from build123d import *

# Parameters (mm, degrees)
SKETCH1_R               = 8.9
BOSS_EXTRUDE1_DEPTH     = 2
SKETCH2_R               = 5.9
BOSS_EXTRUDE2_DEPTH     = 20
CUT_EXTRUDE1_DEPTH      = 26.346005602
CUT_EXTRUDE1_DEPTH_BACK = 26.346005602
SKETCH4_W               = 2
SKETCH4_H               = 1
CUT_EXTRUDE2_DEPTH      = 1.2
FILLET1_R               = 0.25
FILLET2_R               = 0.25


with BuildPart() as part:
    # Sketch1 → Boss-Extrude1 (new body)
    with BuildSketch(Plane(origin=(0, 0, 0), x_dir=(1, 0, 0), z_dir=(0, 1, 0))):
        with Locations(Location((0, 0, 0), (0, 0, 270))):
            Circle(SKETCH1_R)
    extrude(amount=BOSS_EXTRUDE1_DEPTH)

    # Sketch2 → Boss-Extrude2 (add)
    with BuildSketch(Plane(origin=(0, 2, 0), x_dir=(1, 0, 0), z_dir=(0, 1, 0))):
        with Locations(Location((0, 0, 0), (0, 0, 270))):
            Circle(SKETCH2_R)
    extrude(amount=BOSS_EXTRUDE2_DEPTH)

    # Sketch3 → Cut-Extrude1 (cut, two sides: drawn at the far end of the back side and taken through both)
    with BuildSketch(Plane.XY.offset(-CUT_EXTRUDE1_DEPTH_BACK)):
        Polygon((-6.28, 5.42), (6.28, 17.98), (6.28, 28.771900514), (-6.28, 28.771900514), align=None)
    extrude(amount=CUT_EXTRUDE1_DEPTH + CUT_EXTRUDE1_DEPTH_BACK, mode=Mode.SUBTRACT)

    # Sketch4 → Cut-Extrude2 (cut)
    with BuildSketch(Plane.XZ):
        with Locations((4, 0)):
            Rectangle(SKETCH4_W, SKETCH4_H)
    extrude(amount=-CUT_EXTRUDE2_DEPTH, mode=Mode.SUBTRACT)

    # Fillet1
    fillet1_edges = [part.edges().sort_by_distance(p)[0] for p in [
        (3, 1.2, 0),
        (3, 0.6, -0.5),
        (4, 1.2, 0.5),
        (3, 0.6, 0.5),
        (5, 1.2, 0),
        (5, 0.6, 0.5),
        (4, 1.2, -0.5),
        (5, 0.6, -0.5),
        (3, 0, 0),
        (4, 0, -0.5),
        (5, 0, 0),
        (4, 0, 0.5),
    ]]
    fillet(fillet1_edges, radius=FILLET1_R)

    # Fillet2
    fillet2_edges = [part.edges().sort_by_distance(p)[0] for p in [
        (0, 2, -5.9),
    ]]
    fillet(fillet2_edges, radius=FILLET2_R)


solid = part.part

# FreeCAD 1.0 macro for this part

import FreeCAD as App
import Part
import Sketcher
from FreeCAD import Vector
Q = App.Units.Quantity


def edges_at(feature, points):
    """Names of the edges that pass closest to the given points."""
    edges = feature.Shape.Edges
    near = lambda p: min(range(len(edges)), key=lambda i: edges[i].distToShape(Part.Vertex(*p))[0])
    return sorted({f"Edge{near(p) + 1}" for p in points})


def add_polygon(sketch, points):
    """Adds a closed chain of lines whose ends are joined by coincident constraints."""
    first, n = sketch.GeometryCount, len(points)
    for a, b in zip(points, points[1:] + points[:1]):
        sketch.addGeometry(Part.LineSegment(App.Vector(*a, 0), App.Vector(*b, 0)), False)
    for i in range(n):
        sketch.addConstraint(Sketcher.Constraint("Coincident", first + i, 2, first + (i + 1) % n, 1))

doc = App.newDocument("Part")
body = doc.addObject("PartDesign::Body", "Body")

# Sketch on XZ plane
sketch1 = doc.addObject("Sketcher::SketchObject", "Sketch")
body.addObject(sketch1)
sketch1.AttachmentSupport = (doc.XZ_Plane, [""])
sketch1.MapMode = "FlatFace"
sketch1.addGeometry(Part.Circle(Vector(0, 0, 0), Vector(0, 0, 1), 9), False)
sketch1.addConstraint([
    Sketcher.Constraint("Coincident", 0, 3, -1, 1),
    Sketcher.Constraint("Diameter", 0, Q("17.8 mm")),
])
pad1 = doc.addObject("PartDesign::Pad", "Pad")
body.addObject(pad1)
pad1.Profile = sketch1
pad1.Length = 2
pad1.Reversed = True

# Sketch on XZ plane
sketch2 = doc.addObject("Sketcher::SketchObject", "Sketch001")
body.addObject(sketch2)
sketch2.AttachmentSupport = (doc.XZ_Plane, [""])
sketch2.MapMode = "FlatFace"
sketch2.AttachmentOffset = App.Placement(Vector(0, 0, -2), App.Rotation())
sketch2.addGeometry(Part.Circle(Vector(0, 0, 0), Vector(0, 0, 1), 6), False)
sketch2.addConstraint([
    Sketcher.Constraint("Coincident", 0, 3, -1, 1),
    Sketcher.Constraint("Diameter", 0, Q("11.8 mm")),
])
pad2 = doc.addObject("PartDesign::Pad", "Pad001")
body.addObject(pad2)
pad2.Profile = sketch2
pad2.Length = 20
pad2.Reversed = True

# Sketch on XY plane
sketch3 = doc.addObject("Sketcher::SketchObject", "Sketch002")
body.addObject(sketch3)
sketch3.AttachmentSupport = (doc.XY_Plane, [""])
sketch3.MapMode = "FlatFace"
add_polygon(sketch3, [(-6, 5), (6, 18), (6, 29), (-6, 29)])  # lines 0-3
sketch3.addConstraint([
    Sketcher.Constraint("Vertical", 1),
    Sketcher.Constraint("Horizontal", 2),
    Sketcher.Constraint("Vertical", 3),
    Sketcher.Constraint("Angle", 0, Q("45 deg")),
    Sketcher.Constraint("DistanceX", 2, 2, 2, 1, Q("12.56 mm")),
    Sketcher.Constraint("DistanceX", -1, 1, 0, 2, Q("6.28 mm")),
    Sketcher.Constraint("DistanceY", -1, 1, 0, 2, Q("17.98 mm")),
    Sketcher.Constraint("DistanceY", 1, 1, 1, 2, Q("10.791901 mm")),
])
pocket1 = doc.addObject("PartDesign::Pocket", "Pocket")
body.addObject(pocket1)
pocket1.Profile = sketch3
pocket1.Type = "ThroughAll"
pocket1.Midplane = True

# Sketch on XZ plane
sketch4 = doc.addObject("Sketcher::SketchObject", "Sketch003")
body.addObject(sketch4)
sketch4.AttachmentSupport = (doc.XZ_Plane, [""])
sketch4.MapMode = "FlatFace"
add_polygon(sketch4, [(3, 0.5), (3, -0.5), (5, -0.5), (5, 0.5)])  # lines 0-3
sketch4.addConstraint([
    Sketcher.Constraint("Vertical", 0),
    Sketcher.Constraint("Horizontal", 1),
    Sketcher.Constraint("Vertical", 2),
    Sketcher.Constraint("Horizontal", 3),
    Sketcher.Constraint("DistanceX", 1, 1, 1, 2, Q("2 mm")),
    Sketcher.Constraint("DistanceY", 0, 2, 0, 1, Q("1 mm")),
    Sketcher.Constraint("DistanceX", -1, 1, 0, 2, Q("3 mm")),
    Sketcher.Constraint("DistanceY", 0, 2, -1, 1, Q("0.5 mm")),
])
pocket2 = doc.addObject("PartDesign::Pocket", "Pocket001")
body.addObject(pocket2)
pocket2.Profile = sketch4
pocket2.Length = 1.2
doc.recompute()

fillet = doc.addObject("PartDesign::Fillet", "Fillet")
body.addObject(fillet)
fillet.Base = (pocket2, edges_at(pocket2, [
    (3, 1.2, 0),
    (3, 0.6, -0.5),
    (4, 1.2, 0.5),
    (3, 0.6, 0.5),
    (5, 1.2, 0),
    (5, 0.6, 0.5),
    (4, 1.2, -0.5),
    (5, 0.6, -0.5),
    (3, 0, 0),
    (4, 0, -0.5),
    (5, 0, 0),
    (4, 0, 0.5),
]))
fillet.Radius = 0.25
doc.recompute()

fillet2 = doc.addObject("PartDesign::Fillet", "Fillet001")
body.addObject(fillet2)
fillet2.Base = (fillet, edges_at(fillet, [(0, 2, -5.9)]))
fillet2.Radius = 0.25

doc.recompute()
